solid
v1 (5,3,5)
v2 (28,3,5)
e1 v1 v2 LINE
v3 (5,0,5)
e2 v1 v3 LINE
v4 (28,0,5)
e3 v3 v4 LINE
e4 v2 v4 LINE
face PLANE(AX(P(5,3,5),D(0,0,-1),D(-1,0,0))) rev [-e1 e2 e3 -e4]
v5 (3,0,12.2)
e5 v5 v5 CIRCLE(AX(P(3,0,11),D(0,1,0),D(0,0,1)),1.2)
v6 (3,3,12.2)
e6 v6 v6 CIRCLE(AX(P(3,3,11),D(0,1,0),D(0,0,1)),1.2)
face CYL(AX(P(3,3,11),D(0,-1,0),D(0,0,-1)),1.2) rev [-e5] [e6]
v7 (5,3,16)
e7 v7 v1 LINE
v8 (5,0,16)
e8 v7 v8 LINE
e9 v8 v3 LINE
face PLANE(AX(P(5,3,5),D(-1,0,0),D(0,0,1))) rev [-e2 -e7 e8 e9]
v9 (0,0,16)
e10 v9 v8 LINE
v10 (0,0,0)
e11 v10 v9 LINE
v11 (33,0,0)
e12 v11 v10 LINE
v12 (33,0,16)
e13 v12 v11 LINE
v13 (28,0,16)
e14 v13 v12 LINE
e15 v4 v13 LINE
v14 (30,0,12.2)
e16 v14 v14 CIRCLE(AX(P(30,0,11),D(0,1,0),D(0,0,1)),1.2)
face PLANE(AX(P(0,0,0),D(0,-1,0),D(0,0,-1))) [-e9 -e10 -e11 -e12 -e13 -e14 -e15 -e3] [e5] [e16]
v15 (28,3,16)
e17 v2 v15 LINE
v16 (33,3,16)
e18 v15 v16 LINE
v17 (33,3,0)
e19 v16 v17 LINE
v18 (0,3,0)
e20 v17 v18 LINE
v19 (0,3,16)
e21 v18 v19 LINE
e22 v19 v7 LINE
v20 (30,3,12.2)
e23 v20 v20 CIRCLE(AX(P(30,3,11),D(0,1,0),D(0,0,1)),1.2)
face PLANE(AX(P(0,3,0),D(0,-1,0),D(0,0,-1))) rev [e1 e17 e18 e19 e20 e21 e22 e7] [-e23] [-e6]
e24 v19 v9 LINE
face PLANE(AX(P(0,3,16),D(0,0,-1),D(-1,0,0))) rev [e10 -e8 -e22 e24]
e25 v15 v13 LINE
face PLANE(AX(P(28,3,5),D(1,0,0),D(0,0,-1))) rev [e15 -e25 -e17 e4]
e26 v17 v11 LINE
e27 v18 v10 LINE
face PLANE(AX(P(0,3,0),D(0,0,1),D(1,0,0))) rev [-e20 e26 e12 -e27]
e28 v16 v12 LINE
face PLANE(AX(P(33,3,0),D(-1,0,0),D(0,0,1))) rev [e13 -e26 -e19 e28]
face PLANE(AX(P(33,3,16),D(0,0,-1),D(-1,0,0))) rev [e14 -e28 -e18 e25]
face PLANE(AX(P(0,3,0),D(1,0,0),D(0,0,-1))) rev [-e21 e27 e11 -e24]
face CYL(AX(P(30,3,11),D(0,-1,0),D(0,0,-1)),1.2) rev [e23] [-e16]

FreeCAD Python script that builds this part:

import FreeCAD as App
import Part
import Sketcher
Q = App.Units.Quantity


def add_polygon(sketch, points):
    """Adds a closed chain of lines whose ends are joined by coincident constraints."""
    first, n = sketch.GeometryCount, len(points)
    for a, b in zip(points, points[1:] + points[:1]):
        sketch.addGeometry(Part.LineSegment(App.Vector(*a, 0), App.Vector(*b, 0)), False)
    for i in range(n):
        sketch.addConstraint(Sketcher.Constraint("Coincident", first + i, 2, first + (i + 1) % n, 1))

doc = App.newDocument("Part")
body = doc.addObject("PartDesign::Body", "Body")

# Sketch on XZ plane
sketch1 = doc.addObject("Sketcher::SketchObject", "Sketch")
body.addObject(sketch1)
sketch1.AttachmentSupport = (doc.XZ_Plane, [""])
sketch1.MapMode = "FlatFace"
add_polygon(sketch1, [(5, 5), (28, 5), (28, 16), (33, 16), (33, 0), (0, 0), (0, 16), (5, 16)])  # lines 0-7
sketch1.addGeometry(Part.Circle(App.Vector(3, 11, 0), App.Vector(0, 0, 1), 1.2), False)  # 8
sketch1.addGeometry(Part.Circle(App.Vector(30, 11, 0), App.Vector(0, 0, 1), 1.2), False)  # 9
sketch1.addConstraint([
    Sketcher.Constraint("Horizontal", 0),
    Sketcher.Constraint("Vertical", 1),
    Sketcher.Constraint("Horizontal", 2),
    Sketcher.Constraint("Vertical", 3),
    Sketcher.Constraint("Horizontal", 4),
    Sketcher.Constraint("Vertical", 5),
    Sketcher.Constraint("Horizontal", 6),
    Sketcher.Constraint("Vertical", 7),
    Sketcher.Constraint("Coincident", 4, 2, -1, 1),
    Sketcher.Constraint("Equal", 8, 9),
    Sketcher.Constraint("Horizontal", 8, 3, 9, 3),
    Sketcher.Constraint("Horizontal", 2, 2, 5, 2),
    Sketcher.Constraint("Equal", 2, 6),
    Sketcher.Constraint("Diameter", 8, Q("2.4 mm")),
    Sketcher.Constraint("DistanceX", 0, 1, 0, 2, Q("23 mm")),
    Sketcher.Constraint("DistanceX", 2, 1, 2, 2, Q("5 mm")),
    Sketcher.Constraint("DistanceY", 1, 1, 1, 2, Q("11 mm")),
    Sketcher.Constraint("DistanceY", 3, 2, 3, 1, Q("16 mm")),
    Sketcher.Constraint("DistanceX", -1, 1, 8, 3, Q("3 mm")),
    Sketcher.Constraint("DistanceY", -1, 1, 8, 3, Q("11 mm")),
    Sketcher.Constraint("DistanceX", -1, 1, 9, 3, Q("30 mm")),
])
pad1 = doc.addObject("PartDesign::Pad", "Pad")
body.addObject(pad1)
pad1.Profile = sketch1
pad1.Length = 3
pad1.Reversed = True

doc.recompute()
